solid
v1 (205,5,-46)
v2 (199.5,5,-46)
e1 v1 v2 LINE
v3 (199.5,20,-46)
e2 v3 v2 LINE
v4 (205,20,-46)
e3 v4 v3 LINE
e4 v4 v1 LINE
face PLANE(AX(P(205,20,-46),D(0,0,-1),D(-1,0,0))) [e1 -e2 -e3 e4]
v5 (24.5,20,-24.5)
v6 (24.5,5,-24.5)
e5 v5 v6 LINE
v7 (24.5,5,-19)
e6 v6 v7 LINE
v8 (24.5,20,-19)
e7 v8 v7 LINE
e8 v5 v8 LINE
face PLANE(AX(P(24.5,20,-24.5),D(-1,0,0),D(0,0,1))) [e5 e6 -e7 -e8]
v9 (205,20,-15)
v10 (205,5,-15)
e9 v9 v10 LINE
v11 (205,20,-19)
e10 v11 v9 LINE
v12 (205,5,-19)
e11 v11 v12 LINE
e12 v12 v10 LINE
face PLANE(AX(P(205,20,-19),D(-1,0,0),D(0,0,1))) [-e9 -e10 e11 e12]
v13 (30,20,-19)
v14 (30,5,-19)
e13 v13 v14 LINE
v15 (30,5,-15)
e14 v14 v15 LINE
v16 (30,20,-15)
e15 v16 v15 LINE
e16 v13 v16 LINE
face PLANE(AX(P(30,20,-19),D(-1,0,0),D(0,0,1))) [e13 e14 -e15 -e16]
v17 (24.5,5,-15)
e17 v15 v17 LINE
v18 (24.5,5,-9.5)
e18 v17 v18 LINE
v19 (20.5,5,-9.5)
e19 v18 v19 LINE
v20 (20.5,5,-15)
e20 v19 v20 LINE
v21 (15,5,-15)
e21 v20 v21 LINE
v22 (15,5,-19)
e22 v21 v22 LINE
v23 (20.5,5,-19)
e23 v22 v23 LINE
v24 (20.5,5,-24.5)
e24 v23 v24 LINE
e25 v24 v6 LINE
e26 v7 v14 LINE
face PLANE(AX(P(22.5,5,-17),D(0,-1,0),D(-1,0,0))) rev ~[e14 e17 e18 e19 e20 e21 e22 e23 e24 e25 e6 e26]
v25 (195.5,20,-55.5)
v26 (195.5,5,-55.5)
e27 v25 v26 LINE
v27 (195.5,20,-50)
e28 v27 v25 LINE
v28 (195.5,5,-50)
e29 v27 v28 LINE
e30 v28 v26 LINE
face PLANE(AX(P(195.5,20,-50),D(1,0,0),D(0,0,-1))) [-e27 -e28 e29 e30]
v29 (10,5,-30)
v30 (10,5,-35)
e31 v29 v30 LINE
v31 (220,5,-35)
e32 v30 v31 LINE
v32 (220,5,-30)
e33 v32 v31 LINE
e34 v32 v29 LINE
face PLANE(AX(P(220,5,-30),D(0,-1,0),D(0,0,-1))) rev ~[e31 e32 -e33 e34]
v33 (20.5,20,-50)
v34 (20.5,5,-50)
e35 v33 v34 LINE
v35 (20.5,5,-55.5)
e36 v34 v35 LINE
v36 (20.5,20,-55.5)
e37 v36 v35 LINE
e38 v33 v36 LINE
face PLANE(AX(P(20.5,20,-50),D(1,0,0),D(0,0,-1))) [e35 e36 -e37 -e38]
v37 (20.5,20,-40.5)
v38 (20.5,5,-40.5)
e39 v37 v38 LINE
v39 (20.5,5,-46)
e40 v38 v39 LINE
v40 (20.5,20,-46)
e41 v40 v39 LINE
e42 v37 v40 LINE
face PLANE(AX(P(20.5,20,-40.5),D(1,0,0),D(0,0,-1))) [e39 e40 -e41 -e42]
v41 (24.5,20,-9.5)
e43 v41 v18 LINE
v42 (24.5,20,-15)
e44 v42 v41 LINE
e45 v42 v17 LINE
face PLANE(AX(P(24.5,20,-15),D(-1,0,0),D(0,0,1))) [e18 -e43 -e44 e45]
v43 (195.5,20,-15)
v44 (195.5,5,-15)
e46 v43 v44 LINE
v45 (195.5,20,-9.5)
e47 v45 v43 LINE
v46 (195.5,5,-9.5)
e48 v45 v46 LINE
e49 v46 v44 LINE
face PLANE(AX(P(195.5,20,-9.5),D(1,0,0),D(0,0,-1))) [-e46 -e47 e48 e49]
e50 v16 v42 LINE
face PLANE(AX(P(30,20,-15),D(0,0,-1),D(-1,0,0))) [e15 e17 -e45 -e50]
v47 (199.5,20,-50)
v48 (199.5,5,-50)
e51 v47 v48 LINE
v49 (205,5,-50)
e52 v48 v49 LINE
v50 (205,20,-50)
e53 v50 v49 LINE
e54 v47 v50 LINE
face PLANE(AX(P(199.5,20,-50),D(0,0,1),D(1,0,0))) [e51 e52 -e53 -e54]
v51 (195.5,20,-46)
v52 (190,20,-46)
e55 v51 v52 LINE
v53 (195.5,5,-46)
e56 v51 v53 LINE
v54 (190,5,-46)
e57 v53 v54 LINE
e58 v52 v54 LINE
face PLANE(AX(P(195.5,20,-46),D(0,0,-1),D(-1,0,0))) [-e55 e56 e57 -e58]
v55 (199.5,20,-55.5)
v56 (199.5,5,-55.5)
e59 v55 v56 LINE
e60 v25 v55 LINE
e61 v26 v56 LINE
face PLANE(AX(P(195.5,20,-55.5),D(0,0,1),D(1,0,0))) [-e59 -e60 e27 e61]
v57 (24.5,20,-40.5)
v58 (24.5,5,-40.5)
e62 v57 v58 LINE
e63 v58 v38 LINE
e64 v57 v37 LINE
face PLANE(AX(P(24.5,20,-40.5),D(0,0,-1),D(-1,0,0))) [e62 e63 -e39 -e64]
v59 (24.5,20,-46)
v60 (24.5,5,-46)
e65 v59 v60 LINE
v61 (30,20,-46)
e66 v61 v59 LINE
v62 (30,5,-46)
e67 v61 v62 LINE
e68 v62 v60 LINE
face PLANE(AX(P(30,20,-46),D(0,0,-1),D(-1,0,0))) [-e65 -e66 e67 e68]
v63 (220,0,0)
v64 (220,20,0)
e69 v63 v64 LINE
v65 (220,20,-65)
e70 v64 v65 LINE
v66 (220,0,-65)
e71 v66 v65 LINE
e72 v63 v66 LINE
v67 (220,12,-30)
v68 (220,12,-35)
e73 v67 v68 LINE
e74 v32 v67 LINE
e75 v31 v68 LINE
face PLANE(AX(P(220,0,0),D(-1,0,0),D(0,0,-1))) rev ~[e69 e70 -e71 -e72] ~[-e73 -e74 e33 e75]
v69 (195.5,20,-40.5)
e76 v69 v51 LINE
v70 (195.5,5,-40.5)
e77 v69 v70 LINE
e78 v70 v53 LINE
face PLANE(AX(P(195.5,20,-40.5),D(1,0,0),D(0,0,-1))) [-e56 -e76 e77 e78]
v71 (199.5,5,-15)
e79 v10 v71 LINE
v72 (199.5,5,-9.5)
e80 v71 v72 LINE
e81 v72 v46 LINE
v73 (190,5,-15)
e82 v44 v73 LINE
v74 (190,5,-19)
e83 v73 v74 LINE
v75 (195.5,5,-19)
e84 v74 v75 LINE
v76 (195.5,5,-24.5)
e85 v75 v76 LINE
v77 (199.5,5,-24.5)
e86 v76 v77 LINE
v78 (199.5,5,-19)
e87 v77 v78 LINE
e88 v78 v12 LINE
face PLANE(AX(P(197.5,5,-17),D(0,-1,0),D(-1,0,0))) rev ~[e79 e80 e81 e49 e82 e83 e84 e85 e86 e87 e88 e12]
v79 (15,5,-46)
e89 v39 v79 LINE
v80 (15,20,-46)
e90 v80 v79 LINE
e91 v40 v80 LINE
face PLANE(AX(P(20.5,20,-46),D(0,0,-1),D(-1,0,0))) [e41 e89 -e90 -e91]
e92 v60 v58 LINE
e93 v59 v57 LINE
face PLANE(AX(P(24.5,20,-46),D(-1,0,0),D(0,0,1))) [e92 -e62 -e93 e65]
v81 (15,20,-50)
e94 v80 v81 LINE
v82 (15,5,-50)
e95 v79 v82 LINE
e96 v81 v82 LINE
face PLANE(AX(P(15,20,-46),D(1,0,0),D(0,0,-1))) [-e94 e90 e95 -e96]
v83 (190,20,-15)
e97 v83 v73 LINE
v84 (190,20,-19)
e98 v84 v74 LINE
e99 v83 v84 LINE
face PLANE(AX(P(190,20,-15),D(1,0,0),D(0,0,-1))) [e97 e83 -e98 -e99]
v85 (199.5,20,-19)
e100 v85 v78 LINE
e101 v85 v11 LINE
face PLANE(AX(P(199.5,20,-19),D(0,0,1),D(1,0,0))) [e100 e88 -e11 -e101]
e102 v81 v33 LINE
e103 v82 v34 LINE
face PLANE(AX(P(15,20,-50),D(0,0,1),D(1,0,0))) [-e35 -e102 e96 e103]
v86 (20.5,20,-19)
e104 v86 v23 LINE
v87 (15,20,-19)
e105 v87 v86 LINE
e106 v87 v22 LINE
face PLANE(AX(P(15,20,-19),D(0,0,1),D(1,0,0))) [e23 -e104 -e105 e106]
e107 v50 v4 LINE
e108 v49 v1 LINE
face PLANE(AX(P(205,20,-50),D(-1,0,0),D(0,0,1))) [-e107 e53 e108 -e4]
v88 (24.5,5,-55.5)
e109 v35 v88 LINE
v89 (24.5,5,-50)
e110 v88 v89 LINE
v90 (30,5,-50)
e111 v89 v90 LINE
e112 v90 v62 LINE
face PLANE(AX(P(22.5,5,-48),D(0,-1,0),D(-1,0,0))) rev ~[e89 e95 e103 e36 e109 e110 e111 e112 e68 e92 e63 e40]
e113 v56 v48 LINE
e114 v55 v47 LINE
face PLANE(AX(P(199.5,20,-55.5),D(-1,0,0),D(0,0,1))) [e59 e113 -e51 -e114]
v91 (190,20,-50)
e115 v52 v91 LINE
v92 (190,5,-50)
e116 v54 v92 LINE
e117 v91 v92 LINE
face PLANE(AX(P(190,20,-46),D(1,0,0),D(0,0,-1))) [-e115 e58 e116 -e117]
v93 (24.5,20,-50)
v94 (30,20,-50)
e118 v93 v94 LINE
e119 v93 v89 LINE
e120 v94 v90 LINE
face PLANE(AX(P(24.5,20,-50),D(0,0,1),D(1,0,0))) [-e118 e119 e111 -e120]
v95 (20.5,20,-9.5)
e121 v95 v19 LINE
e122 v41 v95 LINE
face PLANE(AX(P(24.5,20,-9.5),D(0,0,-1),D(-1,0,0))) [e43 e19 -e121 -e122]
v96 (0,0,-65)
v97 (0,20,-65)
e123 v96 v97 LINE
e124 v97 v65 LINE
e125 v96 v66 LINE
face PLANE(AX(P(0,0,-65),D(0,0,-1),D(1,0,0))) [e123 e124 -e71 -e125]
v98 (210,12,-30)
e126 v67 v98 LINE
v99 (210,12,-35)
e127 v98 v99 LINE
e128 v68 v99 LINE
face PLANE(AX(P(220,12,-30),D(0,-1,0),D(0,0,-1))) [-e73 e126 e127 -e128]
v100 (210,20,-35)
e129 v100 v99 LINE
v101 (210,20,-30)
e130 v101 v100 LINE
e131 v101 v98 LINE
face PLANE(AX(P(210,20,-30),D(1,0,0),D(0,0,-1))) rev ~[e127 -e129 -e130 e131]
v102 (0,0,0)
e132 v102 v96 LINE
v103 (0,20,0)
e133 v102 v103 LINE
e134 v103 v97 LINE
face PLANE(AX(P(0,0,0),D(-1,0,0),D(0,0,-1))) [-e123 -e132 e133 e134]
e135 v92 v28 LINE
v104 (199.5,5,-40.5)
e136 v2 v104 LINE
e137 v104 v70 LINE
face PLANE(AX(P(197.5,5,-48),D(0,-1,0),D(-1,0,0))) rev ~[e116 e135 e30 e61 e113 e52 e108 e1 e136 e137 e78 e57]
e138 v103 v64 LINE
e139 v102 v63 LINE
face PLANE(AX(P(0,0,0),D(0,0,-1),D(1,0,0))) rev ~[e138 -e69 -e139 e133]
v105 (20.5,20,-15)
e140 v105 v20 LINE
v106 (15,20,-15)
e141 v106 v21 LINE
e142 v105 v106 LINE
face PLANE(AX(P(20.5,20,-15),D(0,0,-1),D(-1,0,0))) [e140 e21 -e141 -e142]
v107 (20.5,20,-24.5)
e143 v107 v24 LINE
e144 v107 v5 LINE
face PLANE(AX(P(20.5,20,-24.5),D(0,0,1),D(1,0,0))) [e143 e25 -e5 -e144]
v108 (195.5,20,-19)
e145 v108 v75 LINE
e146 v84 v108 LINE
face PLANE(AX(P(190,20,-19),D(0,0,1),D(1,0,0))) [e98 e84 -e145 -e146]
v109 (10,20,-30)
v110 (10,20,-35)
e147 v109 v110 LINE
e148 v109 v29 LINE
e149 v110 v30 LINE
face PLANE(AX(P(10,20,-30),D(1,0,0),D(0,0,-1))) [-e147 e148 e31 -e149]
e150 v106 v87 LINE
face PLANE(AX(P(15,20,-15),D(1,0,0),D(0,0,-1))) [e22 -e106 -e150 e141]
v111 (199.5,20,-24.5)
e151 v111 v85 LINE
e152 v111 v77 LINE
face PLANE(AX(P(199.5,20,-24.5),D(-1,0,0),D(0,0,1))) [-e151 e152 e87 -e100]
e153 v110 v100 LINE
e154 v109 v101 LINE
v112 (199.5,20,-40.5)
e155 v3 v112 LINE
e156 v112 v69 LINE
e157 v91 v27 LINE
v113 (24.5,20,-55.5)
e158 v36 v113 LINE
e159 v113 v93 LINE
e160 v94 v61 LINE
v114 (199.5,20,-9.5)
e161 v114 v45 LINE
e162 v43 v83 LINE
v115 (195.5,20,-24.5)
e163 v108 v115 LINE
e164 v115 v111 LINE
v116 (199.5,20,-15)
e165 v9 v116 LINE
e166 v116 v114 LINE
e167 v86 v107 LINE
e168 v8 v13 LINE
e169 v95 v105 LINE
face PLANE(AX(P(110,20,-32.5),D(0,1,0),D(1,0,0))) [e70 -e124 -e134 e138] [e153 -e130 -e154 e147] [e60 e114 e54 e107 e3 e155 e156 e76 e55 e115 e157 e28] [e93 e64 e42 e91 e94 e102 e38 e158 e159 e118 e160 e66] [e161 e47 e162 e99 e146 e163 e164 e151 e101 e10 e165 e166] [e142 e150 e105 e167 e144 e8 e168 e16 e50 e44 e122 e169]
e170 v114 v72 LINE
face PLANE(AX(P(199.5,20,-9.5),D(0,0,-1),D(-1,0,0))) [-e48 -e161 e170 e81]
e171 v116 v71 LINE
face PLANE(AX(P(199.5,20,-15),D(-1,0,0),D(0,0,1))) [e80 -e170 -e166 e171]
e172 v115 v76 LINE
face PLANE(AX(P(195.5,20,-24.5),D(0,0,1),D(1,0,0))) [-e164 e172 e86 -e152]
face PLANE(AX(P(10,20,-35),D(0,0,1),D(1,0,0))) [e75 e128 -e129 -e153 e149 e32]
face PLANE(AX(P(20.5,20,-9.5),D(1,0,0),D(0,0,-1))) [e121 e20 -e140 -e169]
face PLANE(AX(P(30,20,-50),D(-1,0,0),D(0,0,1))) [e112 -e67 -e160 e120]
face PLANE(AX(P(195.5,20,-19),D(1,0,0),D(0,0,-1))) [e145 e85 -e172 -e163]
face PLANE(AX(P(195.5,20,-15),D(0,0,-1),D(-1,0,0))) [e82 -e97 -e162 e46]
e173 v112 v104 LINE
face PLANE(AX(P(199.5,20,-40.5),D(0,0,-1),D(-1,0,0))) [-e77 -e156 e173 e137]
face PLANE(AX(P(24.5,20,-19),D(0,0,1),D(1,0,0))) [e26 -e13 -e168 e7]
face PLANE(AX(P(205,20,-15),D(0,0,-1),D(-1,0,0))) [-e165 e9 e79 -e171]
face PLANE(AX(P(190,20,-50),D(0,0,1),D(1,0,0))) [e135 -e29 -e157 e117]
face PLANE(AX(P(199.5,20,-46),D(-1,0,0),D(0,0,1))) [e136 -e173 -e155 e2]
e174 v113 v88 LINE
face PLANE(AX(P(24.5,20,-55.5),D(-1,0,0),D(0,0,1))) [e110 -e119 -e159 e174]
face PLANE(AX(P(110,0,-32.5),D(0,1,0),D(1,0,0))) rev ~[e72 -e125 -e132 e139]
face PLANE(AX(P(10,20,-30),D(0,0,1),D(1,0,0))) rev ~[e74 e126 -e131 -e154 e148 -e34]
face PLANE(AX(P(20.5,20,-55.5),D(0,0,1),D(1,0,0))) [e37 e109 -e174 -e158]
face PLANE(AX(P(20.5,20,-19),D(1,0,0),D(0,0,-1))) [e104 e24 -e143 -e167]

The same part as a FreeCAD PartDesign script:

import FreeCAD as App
import Part
import Sketcher
from FreeCAD import Vector


def add_polygon(sketch, points):
    """Adds a closed chain of lines whose ends are joined by coincident constraints."""
    first, n = sketch.GeometryCount, len(points)
    for a, b in zip(points, points[1:] + points[:1]):
        sketch.addGeometry(Part.LineSegment(App.Vector(*a, 0), App.Vector(*b, 0)), False)
    for i in range(n):
        sketch.addConstraint(Sketcher.Constraint("Coincident", first + i, 2, first + (i + 1) % n, 1))

doc = App.newDocument("Part")
params = doc.addObject("Spreadsheet::Sheet", "Params")
for row, (alias, value) in enumerate([
    ("sketch1_width", "220 mm"),
    ("sketch1_height", "65 mm"),
    ("pad1_length", "20 mm"),
    ("sketch2_width", "200 mm"),
    ("sketch2_width2", "4 mm"),
    ("sketch2_height", "5 mm"),
    ("sketch2_width3", "5.5 mm"),
    ("pocket1_length", "15 mm"),
    ("sketch3_width", "7 mm"),
    ("sketch3_height", "5 mm"),
    ("pocket2_length", "35 mm"),
], start=1):
    params.set(f"A{row}", alias)
    params.set(f"B{row}", "=" + value)
    params.setAlias(f"B{row}", alias)

body = doc.addObject("PartDesign::Body", "Body")

sketch1 = body.newObject("Sketcher::SketchObject", "Sketch")
sketch1.AttachmentSupport = (doc.getObject("XZ_Plane"), [""])
sketch1.MapMode = "FlatFace"
add_polygon(sketch1, [(0, -65), (0, 0), (220, 0), (220, -65)])
sketch1.addConstraint(Sketcher.Constraint("Vertical", 0))
sketch1.addConstraint(Sketcher.Constraint("Horizontal", 1))
sketch1.addConstraint(Sketcher.Constraint("Vertical", 2))
sketch1.addConstraint(Sketcher.Constraint("Horizontal", 3))
sketch1.addConstraint(Sketcher.Constraint("Coincident", 0, 2, -1, 1))
sketch1.addConstraint(Sketcher.Constraint("DistanceX", 1, 1, 1, 2, 220.0))
sketch1.addConstraint(Sketcher.Constraint("DistanceY", 0, 1, 0, 2, 65.0))
sketch1.setExpression("Constraints[9]", "Params.sketch1_width")
sketch1.setExpression("Constraints[10]", "Params.sketch1_height")
pad1 = body.newObject("PartDesign::Pad", "Pad")
pad1.Profile = sketch1
pad1.setExpression("Length", "Params.pad1_length")
pad1.Reversed = True

sketch2 = body.newObject("Sketcher::SketchObject", "Sketch001")
sketch2.AttachmentSupport = (doc.getObject("XZ_Plane"), [""])
sketch2.MapMode = "FlatFace"
sketch2.AttachmentOffset = App.Placement(Vector(0, 0, -20), App.Rotation())
add_polygon(sketch2, [(10, -35), (10, -30), (210, -30), (210, -35)])
add_polygon(sketch2, [(30, -50), (24.5, -50), (24.5, -55.5), (20.5, -55.5), (20.5, -50), (15, -50), (15, -46), (20.5, -46), (20.5, -40.5), (24.5, -40.5), (24.5, -46), (30, -46)])
add_polygon(sketch2, [(15, -19), (15, -15), (20.5, -15), (20.5, -9.5), (24.5, -9.5), (24.5, -15), (30, -15), (30, -19), (24.5, -19), (24.5, -24.5), (20.5, -24.5), (20.5, -19)])
add_polygon(sketch2, [(199.5, -15), (205, -15), (205, -19), (199.5, -19), (199.5, -24.5), (195.5, -24.5), (195.5, -19), (190, -19), (190, -15), (195.5, -15), (195.5, -9.5), (199.5, -9.5)])
add_polygon(sketch2, [(205, -46), (205, -50), (199.5, -50), (199.5, -55.5), (195.5, -55.5), (195.5, -50), (190, -50), (190, -46), (195.5, -46), (195.5, -40.5), (199.5, -40.5), (199.5, -46)])
sketch2.addConstraint(Sketcher.Constraint("Vertical", 0))
sketch2.addConstraint(Sketcher.Constraint("Horizontal", 1))
sketch2.addConstraint(Sketcher.Constraint("Vertical", 2))
sketch2.addConstraint(Sketcher.Constraint("Horizontal", 3))
sketch2.addConstraint(Sketcher.Constraint("Horizontal", 4))
sketch2.addConstraint(Sketcher.Constraint("Vertical", 5))
sketch2.addConstraint(Sketcher.Constraint("Horizontal", 6))
sketch2.addConstraint(Sketcher.Constraint("Vertical", 7))
sketch2.addConstraint(Sketcher.Constraint("Horizontal", 8))
sketch2.addConstraint(Sketcher.Constraint("Vertical", 9))
sketch2.addConstraint(Sketcher.Constraint("Horizontal", 10))
sketch2.addConstraint(Sketcher.Constraint("Vertical", 11))
sketch2.addConstraint(Sketcher.Constraint("Horizontal", 12))
sketch2.addConstraint(Sketcher.Constraint("Vertical", 13))
sketch2.addConstraint(Sketcher.Constraint("Horizontal", 14))
sketch2.addConstraint(Sketcher.Constraint("Vertical", 15))
sketch2.addConstraint(Sketcher.Constraint("Vertical", 16))
sketch2.addConstraint(Sketcher.Constraint("Horizontal", 17))
sketch2.addConstraint(Sketcher.Constraint("Vertical", 18))
sketch2.addConstraint(Sketcher.Constraint("Horizontal", 19))
sketch2.addConstraint(Sketcher.Constraint("Vertical", 20))
sketch2.addConstraint(Sketcher.Constraint("Horizontal", 21))
sketch2.addConstraint(Sketcher.Constraint("Vertical", 22))
sketch2.addConstraint(Sketcher.Constraint("Horizontal", 23))
sketch2.addConstraint(Sketcher.Constraint("Vertical", 24))
sketch2.addConstraint(Sketcher.Constraint("Horizontal", 25))
sketch2.addConstraint(Sketcher.Constraint("Vertical", 26))
sketch2.addConstraint(Sketcher.Constraint("Horizontal", 27))
sketch2.addConstraint(Sketcher.Constraint("Horizontal", 28))
sketch2.addConstraint(Sketcher.Constraint("Vertical", 29))
sketch2.addConstraint(Sketcher.Constraint("Horizontal", 30))
sketch2.addConstraint(Sketcher.Constraint("Vertical", 31))
sketch2.addConstraint(Sketcher.Constraint("Horizontal", 32))
sketch2.addConstraint(Sketcher.Constraint("Vertical", 33))
sketch2.addConstraint(Sketcher.Constraint("Horizontal", 34))
sketch2.addConstraint(Sketcher.Constraint("Vertical", 35))
sketch2.addConstraint(Sketcher.Constraint("Horizontal", 36))
sketch2.addConstraint(Sketcher.Constraint("Vertical", 37))
sketch2.addConstraint(Sketcher.Constraint("Horizontal", 38))
sketch2.addConstraint(Sketcher.Constraint("Vertical", 39))
sketch2.addConstraint(Sketcher.Constraint("Vertical", 40))
sketch2.addConstraint(Sketcher.Constraint("Horizontal", 41))
sketch2.addConstraint(Sketcher.Constraint("Vertical", 42))
sketch2.addConstraint(Sketcher.Constraint("Horizontal", 43))
sketch2.addConstraint(Sketcher.Constraint("Vertical", 44))
sketch2.addConstraint(Sketcher.Constraint("Horizontal", 45))
sketch2.addConstraint(Sketcher.Constraint("Vertical", 46))
sketch2.addConstraint(Sketcher.Constraint("Horizontal", 47))
sketch2.addConstraint(Sketcher.Constraint("Vertical", 48))
sketch2.addConstraint(Sketcher.Constraint("Horizontal", 49))
sketch2.addConstraint(Sketcher.Constraint("Vertical", 50))
sketch2.addConstraint(Sketcher.Constraint("Horizontal", 51))
sketch2.addConstraint(Sketcher.Constraint("Horizontal", 4, 2, 7, 2))
sketch2.addConstraint(Sketcher.Constraint("Horizontal", 10, 2, 13, 2))
sketch2.addConstraint(Sketcher.Constraint("Horizontal", 17, 2, 20, 2))
sketch2.addConstraint(Sketcher.Constraint("Horizontal", 23, 2, 26, 2))
sketch2.addConstraint(Sketcher.Constraint("Horizontal", 21, 2, 28, 2))
sketch2.addConstraint(Sketcher.Constraint("Horizontal", 27, 2, 29, 2))
sketch2.addConstraint(Sketcher.Constraint("Horizontal", 25, 2, 31, 2))
sketch2.addConstraint(Sketcher.Constraint("Horizontal", 30, 2, 33, 2))
sketch2.addConstraint(Sketcher.Constraint("Horizontal", 28, 2, 35, 2))
sketch2.addConstraint(Sketcher.Constraint("Horizontal", 19, 2, 37, 2))
sketch2.addConstraint(Sketcher.Constraint("Horizontal", 15, 2, 40, 2))
sketch2.addConstraint(Sketcher.Constraint("Horizontal", 6, 2, 42, 2))
sketch2.addConstraint(Sketcher.Constraint("Horizontal", 41, 2, 44, 2))
sketch2.addConstraint(Sketcher.Constraint("Horizontal", 14, 2, 46, 2))
sketch2.addConstraint(Sketcher.Constraint("Horizontal", 12, 2, 48, 2))
sketch2.addConstraint(Sketcher.Constraint("Horizontal", 47, 2, 50, 2))
sketch2.addConstraint(Sketcher.Constraint("Vertical", 7, 2, 10, 2))
sketch2.addConstraint(Sketcher.Constraint("Vertical", 5, 2, 12, 2))
sketch2.addConstraint(Sketcher.Constraint("Vertical", 9, 2, 16, 2))
sketch2.addConstraint(Sketcher.Constraint("Vertical", 11, 2, 17, 2))
sketch2.addConstraint(Sketcher.Constraint("Vertical", 13, 2, 19, 2))
sketch2.addConstraint(Sketcher.Constraint("Vertical", 15, 2, 21, 2))
sketch2.addConstraint(Sketcher.Constraint("Vertical", 20, 2, 23, 2))
sketch2.addConstraint(Sketcher.Constraint("Vertical", 18, 2, 25, 2))
sketch2.addConstraint(Sketcher.Constraint("Vertical", 33, 2, 36, 2))
sketch2.addConstraint(Sketcher.Constraint("Vertical", 31, 2, 38, 2))
sketch2.addConstraint(Sketcher.Constraint("Vertical", 29, 2, 40, 2))
sketch2.addConstraint(Sketcher.Constraint("Vertical", 39, 2, 41, 2))
sketch2.addConstraint(Sketcher.Constraint("Vertical", 37, 2, 43, 2))
sketch2.addConstraint(Sketcher.Constraint("Vertical", 35, 2, 45, 2))
sketch2.addConstraint(Sketcher.Constraint("Vertical", 44, 2, 47, 2))
sketch2.addConstraint(Sketcher.Constraint("Vertical", 42, 2, 49, 2))
sketch2.addConstraint(Sketcher.Constraint("Equal", 4, 8))
sketch2.addConstraint(Sketcher.Constraint("Equal", 27, 28))
sketch2.addConstraint(Sketcher.Constraint("Equal", 25, 32))
sketch2.addConstraint(Sketcher.Constraint("Equal", 30, 34))
sketch2.addConstraint(Sketcher.Constraint("Equal", 51, 5))
sketch2.addConstraint(Sketcher.Constraint("Equal", 49, 9))
sketch2.addConstraint(Sketcher.Constraint("Equal", 7, 11))
sketch2.addConstraint(Sketcher.Constraint("Equal", 15, 16))
sketch2.addConstraint(Sketcher.Constraint("Equal", 13, 18))
sketch2.addConstraint(Sketcher.Constraint("Equal", 20, 24))
sketch2.addConstraint(Sketcher.Constraint("DistanceX", 1, 1, 1, 2, 200.0))
sketch2.addConstraint(Sketcher.Constraint("DistanceX", 6, 2, 6, 1, 4.0))
sketch2.addConstraint(Sketcher.Constraint("DistanceY", 0, 1, 0, 2, 5.0))
sketch2.addConstraint(Sketcher.Constraint("DistanceX", 4, 2, 4, 1, 5.5))
sketch2.addConstraint(Sketcher.Constraint("DistanceX", -1, 1, 0, 2, 10.0))
sketch2.addConstraint(Sketcher.Constraint("DistanceY", 0, 2, -1, 1, 30.0))
sketch2.addConstraint(Sketcher.Constraint("DistanceY", 4, 2, -1, 1, 50.0))
sketch2.addConstraint(Sketcher.Constraint("DistanceX", -1, 1, 8, 2, 15.0))
sketch2.addConstraint(Sketcher.Constraint("DistanceY", 16, 2, -1, 1, 15.0))
sketch2.addConstraint(Sketcher.Constraint("DistanceX", -1, 1, 28, 2, 205.0))
sketch2.setExpression("Constraints[146]", "Params.sketch2_width")
sketch2.setExpression("Constraints[147]", "Params.sketch2_width2")
sketch2.setExpression("Constraints[148]", "Params.sketch2_height")
sketch2.setExpression("Constraints[149]", "Params.sketch2_width3")
pocket1 = body.newObject("PartDesign::Pocket", "Pocket")
pocket1.Profile = sketch2
pocket1.setExpression("Length", "Params.pocket1_length")
pocket1.Reversed = True

sketch3 = body.newObject("Sketcher::SketchObject", "Sketch002")
sketch3.AttachmentSupport = (doc.getObject("YZ_Plane"), [""])
sketch3.MapMode = "FlatFace"
sketch3.AttachmentOffset = App.Placement(Vector(0, 0, 220), App.Rotation())
add_polygon(sketch3, [(12, -30), (5, -30), (5, -35), (12, -35)])
sketch3.addConstraint(Sketcher.Constraint("Horizontal", 0))
sketch3.addConstraint(Sketcher.Constraint("Vertical", 1))
sketch3.addConstraint(Sketcher.Constraint("Horizontal", 2))
sketch3.addConstraint(Sketcher.Constraint("Vertical", 3))
sketch3.addConstraint(Sketcher.Constraint("DistanceX", 0, 2, 0, 1, 7.0))
sketch3.addConstraint(Sketcher.Constraint("DistanceY", 1, 2, 1, 1, 5.0))
sketch3.addConstraint(Sketcher.Constraint("DistanceX", -1, 1, 0, 2, 5.0))
sketch3.addConstraint(Sketcher.Constraint("DistanceY", 0, 2, -1, 1, 30.0))
sketch3.setExpression("Constraints[8]", "Params.sketch3_width")
sketch3.setExpression("Constraints[9]", "Params.sketch3_height")
pocket2 = body.newObject("PartDesign::Pocket", "Pocket001")
pocket2.Profile = sketch3
pocket2.setExpression("Length", "Params.pocket2_length")

doc.recompute()
